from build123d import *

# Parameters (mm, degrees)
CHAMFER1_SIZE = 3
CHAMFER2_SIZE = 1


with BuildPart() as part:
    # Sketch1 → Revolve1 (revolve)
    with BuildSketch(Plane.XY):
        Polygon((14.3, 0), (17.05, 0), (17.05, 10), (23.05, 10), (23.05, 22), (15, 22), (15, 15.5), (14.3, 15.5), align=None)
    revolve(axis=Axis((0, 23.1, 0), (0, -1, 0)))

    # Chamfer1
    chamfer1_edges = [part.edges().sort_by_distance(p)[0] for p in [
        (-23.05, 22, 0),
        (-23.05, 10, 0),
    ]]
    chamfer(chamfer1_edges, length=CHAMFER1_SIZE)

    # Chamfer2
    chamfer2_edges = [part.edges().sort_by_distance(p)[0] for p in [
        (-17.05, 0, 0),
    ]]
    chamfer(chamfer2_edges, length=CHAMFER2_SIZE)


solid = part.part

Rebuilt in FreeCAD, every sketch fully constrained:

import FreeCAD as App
import Part
import Sketcher

V = App.Vector


def edges_at(feature, points):
    """Names of the edges that pass closest to the given points."""
    edges = feature.Shape.Edges
    near = lambda p: min(range(len(edges)), key=lambda i: edges[i].distToShape(Part.Vertex(*p))[0])
    return sorted({f"Edge{near(p) + 1}" for p in points})

doc = App.newDocument("Part")
body = doc.addObject("PartDesign::Body", "Body")

sketch1 = body.newObject("Sketcher::SketchObject", "Sketch")
sketch1.AttachmentSupport = (doc.getObject("XY_Plane"), [""])
sketch1.MapMode = "FlatFace"
sketch1.addGeometry(Part.LineSegment(V(14.3, 0, 0), V(17.1, 0, 0)), False)
sketch1.addGeometry(Part.LineSegment(V(17.1, 0, 0), V(17.1, 10, 0)), False)
sketch1.addGeometry(Part.LineSegment(V(17.1, 10, 0), V(23.1, 10, 0)), False)
sketch1.addGeometry(Part.LineSegment(V(23.1, 10, 0), V(23.1, 22, 0)), False)
sketch1.addGeometry(Part.LineSegment(V(23.1, 22, 0), V(15, 22, 0)), False)
sketch1.addGeometry(Part.LineSegment(V(15, 22, 0), V(15, 15.5, 0)), False)
sketch1.addGeometry(Part.LineSegment(V(15, 15.5, 0), V(14.3, 15.5, 0)), False)
sketch1.addGeometry(Part.LineSegment(V(14.3, 15.5, 0), V(14.3, 0, 0)), False)
sketch1.addConstraint(Sketcher.Constraint("Coincident", 0, 2, 1, 1))
sketch1.addConstraint(Sketcher.Constraint("Coincident", 1, 2, 2, 1))
sketch1.addConstraint(Sketcher.Constraint("Coincident", 2, 2, 3, 1))
sketch1.addConstraint(Sketcher.Constraint("Coincident", 3, 2, 4, 1))
sketch1.addConstraint(Sketcher.Constraint("Coincident", 4, 2, 5, 1))
sketch1.addConstraint(Sketcher.Constraint("Coincident", 5, 2, 6, 1))
sketch1.addConstraint(Sketcher.Constraint("Coincident", 6, 2, 7, 1))
sketch1.addConstraint(Sketcher.Constraint("Coincident", 7, 2, 0, 1))
sketch1.addConstraint(Sketcher.Constraint("Horizontal", 0))
sketch1.addConstraint(Sketcher.Constraint("Vertical", 1))
sketch1.addConstraint(Sketcher.Constraint("Horizontal", 2))
sketch1.addConstraint(Sketcher.Constraint("Vertical", 3))
sketch1.addConstraint(Sketcher.Constraint("Horizontal", 4))
sketch1.addConstraint(Sketcher.Constraint("Vertical", 5))
sketch1.addConstraint(Sketcher.Constraint("Horizontal", 6))
sketch1.addConstraint(Sketcher.Constraint("Vertical", 7))
sketch1.addConstraint(Sketcher.Constraint("PointOnObject", 0, 2, -1))
sketch1.addConstraint(Sketcher.Constraint("DistanceX", 2, 1, 2, 2, 6.0))
sketch1.addConstraint(Sketcher.Constraint("DistanceY", 1, 1, 1, 2, 10.0))
sketch1.addConstraint(Sketcher.Constraint("DistanceY", 3, 1, 3, 2, 12.0))
sketch1.addConstraint(Sketcher.Constraint("DistanceX", 6, 2, 6, 1, 0.7))
sketch1.addConstraint(Sketcher.Constraint("DistanceY", 5, 2, 5, 1, 6.5))
sketch1.addConstraint(Sketcher.Constraint("DistanceX", -1, 1, 4, 2, 15.0))
sketch1.addConstraint(Sketcher.Constraint("DistanceX", 0, 1, 0, 2, 2.75))
revolution = body.newObject("PartDesign::Revolution", "Revolution")
revolution.Profile = sketch1
revolution.ReferenceAxis = (sketch1, ["V_Axis"])
revolution.Angle = 360
doc.recompute()

chamfer = body.newObject("PartDesign::Chamfer", "Chamfer")
chamfer.Base = (revolution, edges_at(revolution, [(-23.05, 22, 0), (-23.05, 10, 0)]))
chamfer.Size = 3
doc.recompute()

chamfer2 = body.newObject("PartDesign::Chamfer", "Chamfer001")
chamfer2.Base = (chamfer, edges_at(chamfer, [(-17.05, 0, 0)]))
chamfer2.Size = 1

doc.recompute()
